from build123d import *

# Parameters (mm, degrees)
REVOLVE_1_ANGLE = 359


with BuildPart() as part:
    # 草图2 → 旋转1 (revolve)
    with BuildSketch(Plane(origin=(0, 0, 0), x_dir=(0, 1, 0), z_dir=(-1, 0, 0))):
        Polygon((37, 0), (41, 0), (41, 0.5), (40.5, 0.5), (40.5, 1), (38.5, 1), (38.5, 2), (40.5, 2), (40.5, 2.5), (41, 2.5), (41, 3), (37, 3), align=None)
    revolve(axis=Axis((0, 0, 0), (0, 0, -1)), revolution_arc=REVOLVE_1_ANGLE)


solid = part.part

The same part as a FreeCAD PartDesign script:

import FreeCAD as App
import Part
import Sketcher

V = App.Vector


def add_polygon(sketch, points):
    """Adds a closed chain of lines whose ends are joined by coincident constraints."""
    first, n = sketch.GeometryCount, len(points)
    for a, b in zip(points, points[1:] + points[:1]):
        sketch.addGeometry(Part.LineSegment(App.Vector(*a, 0), App.Vector(*b, 0)), False)
    for i in range(n):
        sketch.addConstraint(Sketcher.Constraint("Coincident", first + i, 2, first + (i + 1) % n, 1))

doc = App.newDocument("Part")
params = doc.addObject("Spreadsheet::Sheet", "Params")
for row, (alias, value) in enumerate([
    ("sketch1_width", "4 mm"),
    ("sketch1_width2", "2 mm"),
    ("sketch1_height", "1 mm"),
    ("sketch1_height2", "3 mm"),
    ("revolution_angle", "359 deg"),
], start=1):
    params.set(f"A{row}", alias)
    params.set(f"B{row}", "=" + value)
    params.setAlias(f"B{row}", alias)

body = doc.addObject("PartDesign::Body", "Body")

# Sketch on YZ plane
sketch1 = body.newObject("Sketcher::SketchObject", "Sketch")
sketch1.AttachmentSupport = (doc.getObject("YZ_Plane"), [""])
sketch1.MapMode = "FlatFace"
add_polygon(sketch1, [(37, 0), (41, 0), (41, -0.5), (40.5, -0.5), (40.5, -1), (38.5, -1), (38.5, -2), (40.5, -2), (40.5, -2.5), (41, -2.5), (41, -3), (37, -3)])  # lines 0-11
sketch1.addConstraint([
    Sketcher.Constraint("Horizontal", 0),
    Sketcher.Constraint("Vertical", 1),
    Sketcher.Constraint("Horizontal", 2),
    Sketcher.Constraint("Vertical", 3),
    Sketcher.Constraint("Horizontal", 4),
    Sketcher.Constraint("Vertical", 5),
    Sketcher.Constraint("Horizontal", 6),
    Sketcher.Constraint("Vertical", 7),
    Sketcher.Constraint("Horizontal", 8),
    Sketcher.Constraint("Vertical", 9),
    Sketcher.Constraint("Horizontal", 10),
    Sketcher.Constraint("Vertical", 11),
    Sketcher.Constraint("PointOnObject", 0, 2, -1),
    Sketcher.Constraint("Vertical", 3, 2, 6, 2),
    Sketcher.Constraint("Vertical", 1, 2, 8, 2),
    Sketcher.Constraint("Equal", 8, 1),
    Sketcher.Constraint("Equal", 1, 3),
    Sketcher.Constraint("Equal", 3, 7),
    Sketcher.Constraint("Equal", 7, 9),
    Sketcher.Constraint("DistanceX", 0, 1, 0, 2, 4.0),
    Sketcher.Constraint("DistanceX", 4, 2, 4, 1, 2.0),
    Sketcher.Constraint("DistanceY", 5, 2, 5, 1, 1.0),
    Sketcher.Constraint("DistanceY", 11, 1, 11, 2, 3.0),
    Sketcher.Constraint("DistanceX", -1, 1, 0, 2, 41.0),
])
sketch1.setExpression("Constraints[31]", "Params.sketch1_width")
sketch1.setExpression("Constraints[32]", "Params.sketch1_width2")
sketch1.setExpression("Constraints[33]", "Params.sketch1_height")
sketch1.setExpression("Constraints[34]", "Params.sketch1_height2")
revolution = body.newObject("PartDesign::Revolution", "Revolution")
revolution.Profile = sketch1
revolution.ReferenceAxis = (sketch1, ["V_Axis"])
revolution.setExpression("Angle", "Params.revolution_angle")
revolution.Reversed = True

doc.recompute()
